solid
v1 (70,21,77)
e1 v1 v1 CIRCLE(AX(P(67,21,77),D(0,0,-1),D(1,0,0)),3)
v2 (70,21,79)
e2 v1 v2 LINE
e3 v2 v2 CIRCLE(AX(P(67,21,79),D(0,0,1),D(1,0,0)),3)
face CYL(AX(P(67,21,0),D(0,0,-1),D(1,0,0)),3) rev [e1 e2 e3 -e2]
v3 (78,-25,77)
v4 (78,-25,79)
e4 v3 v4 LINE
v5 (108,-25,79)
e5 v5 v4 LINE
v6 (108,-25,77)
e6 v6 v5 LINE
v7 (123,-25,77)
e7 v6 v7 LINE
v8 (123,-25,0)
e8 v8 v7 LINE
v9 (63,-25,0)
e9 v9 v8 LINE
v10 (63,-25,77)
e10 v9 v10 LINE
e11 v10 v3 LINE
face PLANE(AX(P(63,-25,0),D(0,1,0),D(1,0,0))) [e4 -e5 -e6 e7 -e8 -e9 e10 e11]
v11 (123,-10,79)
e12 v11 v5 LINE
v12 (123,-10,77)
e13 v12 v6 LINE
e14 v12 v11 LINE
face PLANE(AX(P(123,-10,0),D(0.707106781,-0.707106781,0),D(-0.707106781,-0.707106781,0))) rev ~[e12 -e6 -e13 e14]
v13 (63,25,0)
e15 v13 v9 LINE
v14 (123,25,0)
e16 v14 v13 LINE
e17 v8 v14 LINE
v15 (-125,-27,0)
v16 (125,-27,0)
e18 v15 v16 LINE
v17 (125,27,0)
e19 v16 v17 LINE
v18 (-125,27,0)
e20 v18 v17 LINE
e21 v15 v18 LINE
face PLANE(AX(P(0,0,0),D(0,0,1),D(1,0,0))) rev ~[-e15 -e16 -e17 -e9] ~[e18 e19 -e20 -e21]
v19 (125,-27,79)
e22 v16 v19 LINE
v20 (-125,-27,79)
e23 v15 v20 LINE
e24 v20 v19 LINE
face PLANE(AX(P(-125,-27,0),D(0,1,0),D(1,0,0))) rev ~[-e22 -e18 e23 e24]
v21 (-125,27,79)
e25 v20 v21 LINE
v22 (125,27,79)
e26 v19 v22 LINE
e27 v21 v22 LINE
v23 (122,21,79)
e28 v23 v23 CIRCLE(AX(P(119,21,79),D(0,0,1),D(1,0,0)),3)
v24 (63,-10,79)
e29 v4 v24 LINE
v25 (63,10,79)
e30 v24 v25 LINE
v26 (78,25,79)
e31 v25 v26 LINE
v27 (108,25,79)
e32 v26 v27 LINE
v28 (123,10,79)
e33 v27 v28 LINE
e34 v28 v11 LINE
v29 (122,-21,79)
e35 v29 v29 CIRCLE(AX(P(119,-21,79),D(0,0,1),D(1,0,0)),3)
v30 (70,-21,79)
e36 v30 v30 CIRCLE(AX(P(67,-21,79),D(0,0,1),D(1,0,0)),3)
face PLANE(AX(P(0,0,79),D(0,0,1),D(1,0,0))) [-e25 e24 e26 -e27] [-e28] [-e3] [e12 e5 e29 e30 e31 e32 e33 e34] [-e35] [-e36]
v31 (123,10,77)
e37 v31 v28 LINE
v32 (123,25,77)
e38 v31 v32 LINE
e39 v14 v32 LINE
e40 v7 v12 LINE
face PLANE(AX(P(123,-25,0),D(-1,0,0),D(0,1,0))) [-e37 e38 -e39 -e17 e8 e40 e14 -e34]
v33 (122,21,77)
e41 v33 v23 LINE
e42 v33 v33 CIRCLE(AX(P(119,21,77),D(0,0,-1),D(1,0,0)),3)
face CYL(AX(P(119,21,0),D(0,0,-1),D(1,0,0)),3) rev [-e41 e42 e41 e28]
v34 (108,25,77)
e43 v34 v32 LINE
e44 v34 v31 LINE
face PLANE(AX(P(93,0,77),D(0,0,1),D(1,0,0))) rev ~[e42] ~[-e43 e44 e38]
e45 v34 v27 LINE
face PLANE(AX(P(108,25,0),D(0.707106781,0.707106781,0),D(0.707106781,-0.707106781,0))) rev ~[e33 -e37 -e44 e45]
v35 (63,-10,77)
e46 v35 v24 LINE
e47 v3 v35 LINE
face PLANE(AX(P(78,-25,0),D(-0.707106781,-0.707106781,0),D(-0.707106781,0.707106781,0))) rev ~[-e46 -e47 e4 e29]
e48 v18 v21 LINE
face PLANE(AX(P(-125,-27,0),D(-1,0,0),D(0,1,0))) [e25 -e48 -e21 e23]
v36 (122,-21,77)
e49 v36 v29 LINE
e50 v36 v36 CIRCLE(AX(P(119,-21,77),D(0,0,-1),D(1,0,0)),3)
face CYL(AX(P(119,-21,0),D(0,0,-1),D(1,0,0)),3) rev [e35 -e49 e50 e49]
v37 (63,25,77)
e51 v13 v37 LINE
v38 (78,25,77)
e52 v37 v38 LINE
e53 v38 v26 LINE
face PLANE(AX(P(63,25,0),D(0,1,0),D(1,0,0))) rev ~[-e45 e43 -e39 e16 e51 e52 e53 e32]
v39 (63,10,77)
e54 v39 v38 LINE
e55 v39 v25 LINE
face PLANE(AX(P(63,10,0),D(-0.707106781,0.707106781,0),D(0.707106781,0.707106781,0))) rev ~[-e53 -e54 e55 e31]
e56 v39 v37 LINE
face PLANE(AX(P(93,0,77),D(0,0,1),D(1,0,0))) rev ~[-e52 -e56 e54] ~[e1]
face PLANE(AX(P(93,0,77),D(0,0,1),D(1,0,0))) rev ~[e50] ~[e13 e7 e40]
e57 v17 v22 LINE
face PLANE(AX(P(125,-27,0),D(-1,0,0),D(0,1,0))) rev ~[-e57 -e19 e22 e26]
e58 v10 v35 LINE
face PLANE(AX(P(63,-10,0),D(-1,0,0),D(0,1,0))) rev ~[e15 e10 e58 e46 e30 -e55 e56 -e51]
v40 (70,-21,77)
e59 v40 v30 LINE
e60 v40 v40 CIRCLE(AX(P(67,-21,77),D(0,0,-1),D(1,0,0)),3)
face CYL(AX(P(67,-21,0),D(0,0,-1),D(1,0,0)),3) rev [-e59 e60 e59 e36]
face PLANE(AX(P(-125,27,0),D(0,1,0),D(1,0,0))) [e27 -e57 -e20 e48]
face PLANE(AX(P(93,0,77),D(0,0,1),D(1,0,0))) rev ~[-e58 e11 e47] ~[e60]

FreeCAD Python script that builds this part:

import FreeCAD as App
import Part
import Sketcher
from FreeCAD import Vector

doc = App.newDocument("Part")
body = doc.addObject("PartDesign::Body", "Body")

sketch1 = doc.addObject("Sketcher::SketchObject", "Sketch")
body.addObject(sketch1)
sketch1.AttachmentSupport = (doc.XY_Plane, [""])
sketch1.MapMode = "FlatFace"
sketch1.addGeometry(Part.LineSegment(Vector(-125, 27, 0), Vector(-125, -27, 0)), False)
sketch1.addGeometry(Part.LineSegment(Vector(-125, -27, 0), Vector(125, -27, 0)), False)
sketch1.addGeometry(Part.LineSegment(Vector(125, -27, 0), Vector(125, 27, 0)), False)
sketch1.addGeometry(Part.LineSegment(Vector(125, 27, 0), Vector(-125, 27, 0)), False)
sketch1.addConstraint(Sketcher.Constraint("Coincident", 0, 2, 1, 1))
sketch1.addConstraint(Sketcher.Constraint("Coincident", 1, 2, 2, 1))
sketch1.addConstraint(Sketcher.Constraint("Coincident", 2, 2, 3, 1))
sketch1.addConstraint(Sketcher.Constraint("Coincident", 3, 2, 0, 1))
sketch1.addConstraint(Sketcher.Constraint("Vertical", 0))
sketch1.addConstraint(Sketcher.Constraint("Horizontal", 1))
sketch1.addConstraint(Sketcher.Constraint("Vertical", 2))
sketch1.addConstraint(Sketcher.Constraint("Horizontal", 3))
sketch1.addConstraint(Sketcher.Constraint("Symmetric", 0, 2, 2, 2, -1, 1))
sketch1.addConstraint(Sketcher.Constraint("DistanceX", 1, 1, 1, 2, 250.0))
sketch1.addConstraint(Sketcher.Constraint("DistanceY", 0, 2, 0, 1, 54.0))
pad1 = doc.addObject("PartDesign::Pad", "Pad")
body.addObject(pad1)
pad1.Profile = sketch1
pad1.Length = 79

sketch2 = doc.addObject("Sketcher::SketchObject", "Sketch001")
body.addObject(sketch2)
sketch2.AttachmentSupport = (doc.XY_Plane, [""])
sketch2.MapMode = "FlatFace"
sketch2.addGeometry(Part.Circle(Vector(67, 21, 0), Vector(0, 0, 1), 3), False)
sketch2.addGeometry(Part.Circle(Vector(119, 21, 0), Vector(0, 0, 1), 3), False)
sketch2.addGeometry(Part.Circle(Vector(119, -21, 0), Vector(0, 0, 1), 3), False)
sketch2.addGeometry(Part.Circle(Vector(67, -21, 0), Vector(0, 0, 1), 3), False)
sketch2.addGeometry(Part.LineSegment(Vector(108, 25, 0), Vector(78, 25, 0)), False)
sketch2.addGeometry(Part.LineSegment(Vector(78, 25, 0), Vector(63, 10, 0)), False)
sketch2.addGeometry(Part.LineSegment(Vector(63, 10, 0), Vector(63, -10, 0)), False)
sketch2.addGeometry(Part.LineSegment(Vector(63, -10, 0), Vector(78, -25, 0)), False)
sketch2.addGeometry(Part.LineSegment(Vector(78, -25, 0), Vector(108, -25, 0)), False)
sketch2.addGeometry(Part.LineSegment(Vector(108, -25, 0), Vector(123, -10, 0)), False)
sketch2.addGeometry(Part.LineSegment(Vector(123, -10, 0), Vector(123, 10, 0)), False)
sketch2.addGeometry(Part.LineSegment(Vector(123, 10, 0), Vector(108, 25, 0)), False)
sketch2.addConstraint(Sketcher.Constraint("Coincident", 4, 2, 5, 1))
sketch2.addConstraint(Sketcher.Constraint("Coincident", 5, 2, 6, 1))
sketch2.addConstraint(Sketcher.Constraint("Coincident", 6, 2, 7, 1))
sketch2.addConstraint(Sketcher.Constraint("Coincident", 7, 2, 8, 1))
sketch2.addConstraint(Sketcher.Constraint("Coincident", 8, 2, 9, 1))
sketch2.addConstraint(Sketcher.Constraint("Coincident", 9, 2, 10, 1))
sketch2.addConstraint(Sketcher.Constraint("Coincident", 10, 2, 11, 1))
sketch2.addConstraint(Sketcher.Constraint("Coincident", 11, 2, 4, 1))
sketch2.addConstraint(Sketcher.Constraint("Horizontal", 4))
sketch2.addConstraint(Sketcher.Constraint("Vertical", 6))
sketch2.addConstraint(Sketcher.Constraint("Horizontal", 8))
sketch2.addConstraint(Sketcher.Constraint("Vertical", 10))
sketch2.addConstraint(Sketcher.Constraint("Equal", 0, 1))
sketch2.addConstraint(Sketcher.Constraint("Equal", 1, 2))
sketch2.addConstraint(Sketcher.Constraint("Equal", 2, 3))
sketch2.addConstraint(Sketcher.Constraint("Symmetric", 1, 3, 2, 3, -1))
sketch2.addConstraint(Sketcher.Constraint("Symmetric", 0, 3, 3, 3, -1))
sketch2.addConstraint(Sketcher.Constraint("Symmetric", 4, 2, 7, 2, -1))
sketch2.addConstraint(Sketcher.Constraint("Perpendicular", 5, 7))
sketch2.addConstraint(Sketcher.Constraint("Perpendicular", 7, 9))
sketch2.addConstraint(Sketcher.Constraint("Perpendicular", 9, 11))
sketch2.addConstraint(Sketcher.Constraint("Horizontal", 0, 3, 1, 3))
sketch2.addConstraint(Sketcher.Constraint("Horizontal", 6, 2, 9, 2))
sketch2.addConstraint(Sketcher.Constraint("Horizontal", 5, 2, 10, 2))
sketch2.addConstraint(Sketcher.Constraint("Vertical", 8, 2, 11, 2))
sketch2.addConstraint(Sketcher.Constraint("Diameter", 0, 6.0))
sketch2.addConstraint(Sketcher.Constraint("DistanceX", 4, 2, 4, 1, 30.0))
sketch2.addConstraint(Sketcher.Constraint("DistanceY", 6, 2, 6, 1, 20.0))
sketch2.addConstraint(Sketcher.Constraint("DistanceX", -1, 1, 0, 3, 67.0))
sketch2.addConstraint(Sketcher.Constraint("DistanceY", -1, 1, 0, 3, 21.0))
sketch2.addConstraint(Sketcher.Constraint("DistanceX", -1, 1, 1, 3, 119.0))
sketch2.addConstraint(Sketcher.Constraint("DistanceX", -1, 1, 4, 2, 78.0))
sketch2.addConstraint(Sketcher.Constraint("DistanceY", -1, 1, 4, 2, 25.0))
pocket1 = doc.addObject("PartDesign::Pocket", "Pocket")
body.addObject(pocket1)
pocket1.Profile = sketch2
pocket1.Length = 79
pocket1.Reversed = True

sketch3 = doc.addObject("Sketcher::SketchObject", "Sketch002")
body.addObject(sketch3)
sketch3.AttachmentSupport = (doc.XY_Plane, [""])
sketch3.MapMode = "FlatFace"
sketch3.addGeometry(Part.LineSegment(Vector(63, 25, 0), Vector(63, -25, 0)), False)
sketch3.addGeometry(Part.LineSegment(Vector(63, -25, 0), Vector(123, -25, 0)), False)
sketch3.addGeometry(Part.LineSegment(Vector(123, -25, 0), Vector(123, 25, 0)), False)
sketch3.addGeometry(Part.LineSegment(Vector(123, 25, 0), Vector(63, 25, 0)), False)
sketch3.addConstraint(Sketcher.Constraint("Coincident", 0, 2, 1, 1))
sketch3.addConstraint(Sketcher.Constraint("Coincident", 1, 2, 2, 1))
sketch3.addConstraint(Sketcher.Constraint("Coincident", 2, 2, 3, 1))
sketch3.addConstraint(Sketcher.Constraint("Coincident", 3, 2, 0, 1))
sketch3.addConstraint(Sketcher.Constraint("Vertical", 0))
sketch3.addConstraint(Sketcher.Constraint("Horizontal", 1))
sketch3.addConstraint(Sketcher.Constraint("Vertical", 2))
sketch3.addConstraint(Sketcher.Constraint("Horizontal", 3))
sketch3.addConstraint(Sketcher.Constraint("DistanceX", 1, 1, 1, 2, 60.0))
sketch3.addConstraint(Sketcher.Constraint("DistanceY", 0, 2, 0, 1, 50.0))
sketch3.addConstraint(Sketcher.Constraint("DistanceX", -1, 1, 0, 2, 63.0))
sketch3.addConstraint(Sketcher.Constraint("DistanceY", 0, 2, -1, 1, 25.0))
pocket2 = doc.addObject("PartDesign::Pocket", "Pocket001")
body.addObject(pocket2)
pocket2.Profile = sketch3
pocket2.Length = 77
pocket2.Reversed = True

doc.recompute()
